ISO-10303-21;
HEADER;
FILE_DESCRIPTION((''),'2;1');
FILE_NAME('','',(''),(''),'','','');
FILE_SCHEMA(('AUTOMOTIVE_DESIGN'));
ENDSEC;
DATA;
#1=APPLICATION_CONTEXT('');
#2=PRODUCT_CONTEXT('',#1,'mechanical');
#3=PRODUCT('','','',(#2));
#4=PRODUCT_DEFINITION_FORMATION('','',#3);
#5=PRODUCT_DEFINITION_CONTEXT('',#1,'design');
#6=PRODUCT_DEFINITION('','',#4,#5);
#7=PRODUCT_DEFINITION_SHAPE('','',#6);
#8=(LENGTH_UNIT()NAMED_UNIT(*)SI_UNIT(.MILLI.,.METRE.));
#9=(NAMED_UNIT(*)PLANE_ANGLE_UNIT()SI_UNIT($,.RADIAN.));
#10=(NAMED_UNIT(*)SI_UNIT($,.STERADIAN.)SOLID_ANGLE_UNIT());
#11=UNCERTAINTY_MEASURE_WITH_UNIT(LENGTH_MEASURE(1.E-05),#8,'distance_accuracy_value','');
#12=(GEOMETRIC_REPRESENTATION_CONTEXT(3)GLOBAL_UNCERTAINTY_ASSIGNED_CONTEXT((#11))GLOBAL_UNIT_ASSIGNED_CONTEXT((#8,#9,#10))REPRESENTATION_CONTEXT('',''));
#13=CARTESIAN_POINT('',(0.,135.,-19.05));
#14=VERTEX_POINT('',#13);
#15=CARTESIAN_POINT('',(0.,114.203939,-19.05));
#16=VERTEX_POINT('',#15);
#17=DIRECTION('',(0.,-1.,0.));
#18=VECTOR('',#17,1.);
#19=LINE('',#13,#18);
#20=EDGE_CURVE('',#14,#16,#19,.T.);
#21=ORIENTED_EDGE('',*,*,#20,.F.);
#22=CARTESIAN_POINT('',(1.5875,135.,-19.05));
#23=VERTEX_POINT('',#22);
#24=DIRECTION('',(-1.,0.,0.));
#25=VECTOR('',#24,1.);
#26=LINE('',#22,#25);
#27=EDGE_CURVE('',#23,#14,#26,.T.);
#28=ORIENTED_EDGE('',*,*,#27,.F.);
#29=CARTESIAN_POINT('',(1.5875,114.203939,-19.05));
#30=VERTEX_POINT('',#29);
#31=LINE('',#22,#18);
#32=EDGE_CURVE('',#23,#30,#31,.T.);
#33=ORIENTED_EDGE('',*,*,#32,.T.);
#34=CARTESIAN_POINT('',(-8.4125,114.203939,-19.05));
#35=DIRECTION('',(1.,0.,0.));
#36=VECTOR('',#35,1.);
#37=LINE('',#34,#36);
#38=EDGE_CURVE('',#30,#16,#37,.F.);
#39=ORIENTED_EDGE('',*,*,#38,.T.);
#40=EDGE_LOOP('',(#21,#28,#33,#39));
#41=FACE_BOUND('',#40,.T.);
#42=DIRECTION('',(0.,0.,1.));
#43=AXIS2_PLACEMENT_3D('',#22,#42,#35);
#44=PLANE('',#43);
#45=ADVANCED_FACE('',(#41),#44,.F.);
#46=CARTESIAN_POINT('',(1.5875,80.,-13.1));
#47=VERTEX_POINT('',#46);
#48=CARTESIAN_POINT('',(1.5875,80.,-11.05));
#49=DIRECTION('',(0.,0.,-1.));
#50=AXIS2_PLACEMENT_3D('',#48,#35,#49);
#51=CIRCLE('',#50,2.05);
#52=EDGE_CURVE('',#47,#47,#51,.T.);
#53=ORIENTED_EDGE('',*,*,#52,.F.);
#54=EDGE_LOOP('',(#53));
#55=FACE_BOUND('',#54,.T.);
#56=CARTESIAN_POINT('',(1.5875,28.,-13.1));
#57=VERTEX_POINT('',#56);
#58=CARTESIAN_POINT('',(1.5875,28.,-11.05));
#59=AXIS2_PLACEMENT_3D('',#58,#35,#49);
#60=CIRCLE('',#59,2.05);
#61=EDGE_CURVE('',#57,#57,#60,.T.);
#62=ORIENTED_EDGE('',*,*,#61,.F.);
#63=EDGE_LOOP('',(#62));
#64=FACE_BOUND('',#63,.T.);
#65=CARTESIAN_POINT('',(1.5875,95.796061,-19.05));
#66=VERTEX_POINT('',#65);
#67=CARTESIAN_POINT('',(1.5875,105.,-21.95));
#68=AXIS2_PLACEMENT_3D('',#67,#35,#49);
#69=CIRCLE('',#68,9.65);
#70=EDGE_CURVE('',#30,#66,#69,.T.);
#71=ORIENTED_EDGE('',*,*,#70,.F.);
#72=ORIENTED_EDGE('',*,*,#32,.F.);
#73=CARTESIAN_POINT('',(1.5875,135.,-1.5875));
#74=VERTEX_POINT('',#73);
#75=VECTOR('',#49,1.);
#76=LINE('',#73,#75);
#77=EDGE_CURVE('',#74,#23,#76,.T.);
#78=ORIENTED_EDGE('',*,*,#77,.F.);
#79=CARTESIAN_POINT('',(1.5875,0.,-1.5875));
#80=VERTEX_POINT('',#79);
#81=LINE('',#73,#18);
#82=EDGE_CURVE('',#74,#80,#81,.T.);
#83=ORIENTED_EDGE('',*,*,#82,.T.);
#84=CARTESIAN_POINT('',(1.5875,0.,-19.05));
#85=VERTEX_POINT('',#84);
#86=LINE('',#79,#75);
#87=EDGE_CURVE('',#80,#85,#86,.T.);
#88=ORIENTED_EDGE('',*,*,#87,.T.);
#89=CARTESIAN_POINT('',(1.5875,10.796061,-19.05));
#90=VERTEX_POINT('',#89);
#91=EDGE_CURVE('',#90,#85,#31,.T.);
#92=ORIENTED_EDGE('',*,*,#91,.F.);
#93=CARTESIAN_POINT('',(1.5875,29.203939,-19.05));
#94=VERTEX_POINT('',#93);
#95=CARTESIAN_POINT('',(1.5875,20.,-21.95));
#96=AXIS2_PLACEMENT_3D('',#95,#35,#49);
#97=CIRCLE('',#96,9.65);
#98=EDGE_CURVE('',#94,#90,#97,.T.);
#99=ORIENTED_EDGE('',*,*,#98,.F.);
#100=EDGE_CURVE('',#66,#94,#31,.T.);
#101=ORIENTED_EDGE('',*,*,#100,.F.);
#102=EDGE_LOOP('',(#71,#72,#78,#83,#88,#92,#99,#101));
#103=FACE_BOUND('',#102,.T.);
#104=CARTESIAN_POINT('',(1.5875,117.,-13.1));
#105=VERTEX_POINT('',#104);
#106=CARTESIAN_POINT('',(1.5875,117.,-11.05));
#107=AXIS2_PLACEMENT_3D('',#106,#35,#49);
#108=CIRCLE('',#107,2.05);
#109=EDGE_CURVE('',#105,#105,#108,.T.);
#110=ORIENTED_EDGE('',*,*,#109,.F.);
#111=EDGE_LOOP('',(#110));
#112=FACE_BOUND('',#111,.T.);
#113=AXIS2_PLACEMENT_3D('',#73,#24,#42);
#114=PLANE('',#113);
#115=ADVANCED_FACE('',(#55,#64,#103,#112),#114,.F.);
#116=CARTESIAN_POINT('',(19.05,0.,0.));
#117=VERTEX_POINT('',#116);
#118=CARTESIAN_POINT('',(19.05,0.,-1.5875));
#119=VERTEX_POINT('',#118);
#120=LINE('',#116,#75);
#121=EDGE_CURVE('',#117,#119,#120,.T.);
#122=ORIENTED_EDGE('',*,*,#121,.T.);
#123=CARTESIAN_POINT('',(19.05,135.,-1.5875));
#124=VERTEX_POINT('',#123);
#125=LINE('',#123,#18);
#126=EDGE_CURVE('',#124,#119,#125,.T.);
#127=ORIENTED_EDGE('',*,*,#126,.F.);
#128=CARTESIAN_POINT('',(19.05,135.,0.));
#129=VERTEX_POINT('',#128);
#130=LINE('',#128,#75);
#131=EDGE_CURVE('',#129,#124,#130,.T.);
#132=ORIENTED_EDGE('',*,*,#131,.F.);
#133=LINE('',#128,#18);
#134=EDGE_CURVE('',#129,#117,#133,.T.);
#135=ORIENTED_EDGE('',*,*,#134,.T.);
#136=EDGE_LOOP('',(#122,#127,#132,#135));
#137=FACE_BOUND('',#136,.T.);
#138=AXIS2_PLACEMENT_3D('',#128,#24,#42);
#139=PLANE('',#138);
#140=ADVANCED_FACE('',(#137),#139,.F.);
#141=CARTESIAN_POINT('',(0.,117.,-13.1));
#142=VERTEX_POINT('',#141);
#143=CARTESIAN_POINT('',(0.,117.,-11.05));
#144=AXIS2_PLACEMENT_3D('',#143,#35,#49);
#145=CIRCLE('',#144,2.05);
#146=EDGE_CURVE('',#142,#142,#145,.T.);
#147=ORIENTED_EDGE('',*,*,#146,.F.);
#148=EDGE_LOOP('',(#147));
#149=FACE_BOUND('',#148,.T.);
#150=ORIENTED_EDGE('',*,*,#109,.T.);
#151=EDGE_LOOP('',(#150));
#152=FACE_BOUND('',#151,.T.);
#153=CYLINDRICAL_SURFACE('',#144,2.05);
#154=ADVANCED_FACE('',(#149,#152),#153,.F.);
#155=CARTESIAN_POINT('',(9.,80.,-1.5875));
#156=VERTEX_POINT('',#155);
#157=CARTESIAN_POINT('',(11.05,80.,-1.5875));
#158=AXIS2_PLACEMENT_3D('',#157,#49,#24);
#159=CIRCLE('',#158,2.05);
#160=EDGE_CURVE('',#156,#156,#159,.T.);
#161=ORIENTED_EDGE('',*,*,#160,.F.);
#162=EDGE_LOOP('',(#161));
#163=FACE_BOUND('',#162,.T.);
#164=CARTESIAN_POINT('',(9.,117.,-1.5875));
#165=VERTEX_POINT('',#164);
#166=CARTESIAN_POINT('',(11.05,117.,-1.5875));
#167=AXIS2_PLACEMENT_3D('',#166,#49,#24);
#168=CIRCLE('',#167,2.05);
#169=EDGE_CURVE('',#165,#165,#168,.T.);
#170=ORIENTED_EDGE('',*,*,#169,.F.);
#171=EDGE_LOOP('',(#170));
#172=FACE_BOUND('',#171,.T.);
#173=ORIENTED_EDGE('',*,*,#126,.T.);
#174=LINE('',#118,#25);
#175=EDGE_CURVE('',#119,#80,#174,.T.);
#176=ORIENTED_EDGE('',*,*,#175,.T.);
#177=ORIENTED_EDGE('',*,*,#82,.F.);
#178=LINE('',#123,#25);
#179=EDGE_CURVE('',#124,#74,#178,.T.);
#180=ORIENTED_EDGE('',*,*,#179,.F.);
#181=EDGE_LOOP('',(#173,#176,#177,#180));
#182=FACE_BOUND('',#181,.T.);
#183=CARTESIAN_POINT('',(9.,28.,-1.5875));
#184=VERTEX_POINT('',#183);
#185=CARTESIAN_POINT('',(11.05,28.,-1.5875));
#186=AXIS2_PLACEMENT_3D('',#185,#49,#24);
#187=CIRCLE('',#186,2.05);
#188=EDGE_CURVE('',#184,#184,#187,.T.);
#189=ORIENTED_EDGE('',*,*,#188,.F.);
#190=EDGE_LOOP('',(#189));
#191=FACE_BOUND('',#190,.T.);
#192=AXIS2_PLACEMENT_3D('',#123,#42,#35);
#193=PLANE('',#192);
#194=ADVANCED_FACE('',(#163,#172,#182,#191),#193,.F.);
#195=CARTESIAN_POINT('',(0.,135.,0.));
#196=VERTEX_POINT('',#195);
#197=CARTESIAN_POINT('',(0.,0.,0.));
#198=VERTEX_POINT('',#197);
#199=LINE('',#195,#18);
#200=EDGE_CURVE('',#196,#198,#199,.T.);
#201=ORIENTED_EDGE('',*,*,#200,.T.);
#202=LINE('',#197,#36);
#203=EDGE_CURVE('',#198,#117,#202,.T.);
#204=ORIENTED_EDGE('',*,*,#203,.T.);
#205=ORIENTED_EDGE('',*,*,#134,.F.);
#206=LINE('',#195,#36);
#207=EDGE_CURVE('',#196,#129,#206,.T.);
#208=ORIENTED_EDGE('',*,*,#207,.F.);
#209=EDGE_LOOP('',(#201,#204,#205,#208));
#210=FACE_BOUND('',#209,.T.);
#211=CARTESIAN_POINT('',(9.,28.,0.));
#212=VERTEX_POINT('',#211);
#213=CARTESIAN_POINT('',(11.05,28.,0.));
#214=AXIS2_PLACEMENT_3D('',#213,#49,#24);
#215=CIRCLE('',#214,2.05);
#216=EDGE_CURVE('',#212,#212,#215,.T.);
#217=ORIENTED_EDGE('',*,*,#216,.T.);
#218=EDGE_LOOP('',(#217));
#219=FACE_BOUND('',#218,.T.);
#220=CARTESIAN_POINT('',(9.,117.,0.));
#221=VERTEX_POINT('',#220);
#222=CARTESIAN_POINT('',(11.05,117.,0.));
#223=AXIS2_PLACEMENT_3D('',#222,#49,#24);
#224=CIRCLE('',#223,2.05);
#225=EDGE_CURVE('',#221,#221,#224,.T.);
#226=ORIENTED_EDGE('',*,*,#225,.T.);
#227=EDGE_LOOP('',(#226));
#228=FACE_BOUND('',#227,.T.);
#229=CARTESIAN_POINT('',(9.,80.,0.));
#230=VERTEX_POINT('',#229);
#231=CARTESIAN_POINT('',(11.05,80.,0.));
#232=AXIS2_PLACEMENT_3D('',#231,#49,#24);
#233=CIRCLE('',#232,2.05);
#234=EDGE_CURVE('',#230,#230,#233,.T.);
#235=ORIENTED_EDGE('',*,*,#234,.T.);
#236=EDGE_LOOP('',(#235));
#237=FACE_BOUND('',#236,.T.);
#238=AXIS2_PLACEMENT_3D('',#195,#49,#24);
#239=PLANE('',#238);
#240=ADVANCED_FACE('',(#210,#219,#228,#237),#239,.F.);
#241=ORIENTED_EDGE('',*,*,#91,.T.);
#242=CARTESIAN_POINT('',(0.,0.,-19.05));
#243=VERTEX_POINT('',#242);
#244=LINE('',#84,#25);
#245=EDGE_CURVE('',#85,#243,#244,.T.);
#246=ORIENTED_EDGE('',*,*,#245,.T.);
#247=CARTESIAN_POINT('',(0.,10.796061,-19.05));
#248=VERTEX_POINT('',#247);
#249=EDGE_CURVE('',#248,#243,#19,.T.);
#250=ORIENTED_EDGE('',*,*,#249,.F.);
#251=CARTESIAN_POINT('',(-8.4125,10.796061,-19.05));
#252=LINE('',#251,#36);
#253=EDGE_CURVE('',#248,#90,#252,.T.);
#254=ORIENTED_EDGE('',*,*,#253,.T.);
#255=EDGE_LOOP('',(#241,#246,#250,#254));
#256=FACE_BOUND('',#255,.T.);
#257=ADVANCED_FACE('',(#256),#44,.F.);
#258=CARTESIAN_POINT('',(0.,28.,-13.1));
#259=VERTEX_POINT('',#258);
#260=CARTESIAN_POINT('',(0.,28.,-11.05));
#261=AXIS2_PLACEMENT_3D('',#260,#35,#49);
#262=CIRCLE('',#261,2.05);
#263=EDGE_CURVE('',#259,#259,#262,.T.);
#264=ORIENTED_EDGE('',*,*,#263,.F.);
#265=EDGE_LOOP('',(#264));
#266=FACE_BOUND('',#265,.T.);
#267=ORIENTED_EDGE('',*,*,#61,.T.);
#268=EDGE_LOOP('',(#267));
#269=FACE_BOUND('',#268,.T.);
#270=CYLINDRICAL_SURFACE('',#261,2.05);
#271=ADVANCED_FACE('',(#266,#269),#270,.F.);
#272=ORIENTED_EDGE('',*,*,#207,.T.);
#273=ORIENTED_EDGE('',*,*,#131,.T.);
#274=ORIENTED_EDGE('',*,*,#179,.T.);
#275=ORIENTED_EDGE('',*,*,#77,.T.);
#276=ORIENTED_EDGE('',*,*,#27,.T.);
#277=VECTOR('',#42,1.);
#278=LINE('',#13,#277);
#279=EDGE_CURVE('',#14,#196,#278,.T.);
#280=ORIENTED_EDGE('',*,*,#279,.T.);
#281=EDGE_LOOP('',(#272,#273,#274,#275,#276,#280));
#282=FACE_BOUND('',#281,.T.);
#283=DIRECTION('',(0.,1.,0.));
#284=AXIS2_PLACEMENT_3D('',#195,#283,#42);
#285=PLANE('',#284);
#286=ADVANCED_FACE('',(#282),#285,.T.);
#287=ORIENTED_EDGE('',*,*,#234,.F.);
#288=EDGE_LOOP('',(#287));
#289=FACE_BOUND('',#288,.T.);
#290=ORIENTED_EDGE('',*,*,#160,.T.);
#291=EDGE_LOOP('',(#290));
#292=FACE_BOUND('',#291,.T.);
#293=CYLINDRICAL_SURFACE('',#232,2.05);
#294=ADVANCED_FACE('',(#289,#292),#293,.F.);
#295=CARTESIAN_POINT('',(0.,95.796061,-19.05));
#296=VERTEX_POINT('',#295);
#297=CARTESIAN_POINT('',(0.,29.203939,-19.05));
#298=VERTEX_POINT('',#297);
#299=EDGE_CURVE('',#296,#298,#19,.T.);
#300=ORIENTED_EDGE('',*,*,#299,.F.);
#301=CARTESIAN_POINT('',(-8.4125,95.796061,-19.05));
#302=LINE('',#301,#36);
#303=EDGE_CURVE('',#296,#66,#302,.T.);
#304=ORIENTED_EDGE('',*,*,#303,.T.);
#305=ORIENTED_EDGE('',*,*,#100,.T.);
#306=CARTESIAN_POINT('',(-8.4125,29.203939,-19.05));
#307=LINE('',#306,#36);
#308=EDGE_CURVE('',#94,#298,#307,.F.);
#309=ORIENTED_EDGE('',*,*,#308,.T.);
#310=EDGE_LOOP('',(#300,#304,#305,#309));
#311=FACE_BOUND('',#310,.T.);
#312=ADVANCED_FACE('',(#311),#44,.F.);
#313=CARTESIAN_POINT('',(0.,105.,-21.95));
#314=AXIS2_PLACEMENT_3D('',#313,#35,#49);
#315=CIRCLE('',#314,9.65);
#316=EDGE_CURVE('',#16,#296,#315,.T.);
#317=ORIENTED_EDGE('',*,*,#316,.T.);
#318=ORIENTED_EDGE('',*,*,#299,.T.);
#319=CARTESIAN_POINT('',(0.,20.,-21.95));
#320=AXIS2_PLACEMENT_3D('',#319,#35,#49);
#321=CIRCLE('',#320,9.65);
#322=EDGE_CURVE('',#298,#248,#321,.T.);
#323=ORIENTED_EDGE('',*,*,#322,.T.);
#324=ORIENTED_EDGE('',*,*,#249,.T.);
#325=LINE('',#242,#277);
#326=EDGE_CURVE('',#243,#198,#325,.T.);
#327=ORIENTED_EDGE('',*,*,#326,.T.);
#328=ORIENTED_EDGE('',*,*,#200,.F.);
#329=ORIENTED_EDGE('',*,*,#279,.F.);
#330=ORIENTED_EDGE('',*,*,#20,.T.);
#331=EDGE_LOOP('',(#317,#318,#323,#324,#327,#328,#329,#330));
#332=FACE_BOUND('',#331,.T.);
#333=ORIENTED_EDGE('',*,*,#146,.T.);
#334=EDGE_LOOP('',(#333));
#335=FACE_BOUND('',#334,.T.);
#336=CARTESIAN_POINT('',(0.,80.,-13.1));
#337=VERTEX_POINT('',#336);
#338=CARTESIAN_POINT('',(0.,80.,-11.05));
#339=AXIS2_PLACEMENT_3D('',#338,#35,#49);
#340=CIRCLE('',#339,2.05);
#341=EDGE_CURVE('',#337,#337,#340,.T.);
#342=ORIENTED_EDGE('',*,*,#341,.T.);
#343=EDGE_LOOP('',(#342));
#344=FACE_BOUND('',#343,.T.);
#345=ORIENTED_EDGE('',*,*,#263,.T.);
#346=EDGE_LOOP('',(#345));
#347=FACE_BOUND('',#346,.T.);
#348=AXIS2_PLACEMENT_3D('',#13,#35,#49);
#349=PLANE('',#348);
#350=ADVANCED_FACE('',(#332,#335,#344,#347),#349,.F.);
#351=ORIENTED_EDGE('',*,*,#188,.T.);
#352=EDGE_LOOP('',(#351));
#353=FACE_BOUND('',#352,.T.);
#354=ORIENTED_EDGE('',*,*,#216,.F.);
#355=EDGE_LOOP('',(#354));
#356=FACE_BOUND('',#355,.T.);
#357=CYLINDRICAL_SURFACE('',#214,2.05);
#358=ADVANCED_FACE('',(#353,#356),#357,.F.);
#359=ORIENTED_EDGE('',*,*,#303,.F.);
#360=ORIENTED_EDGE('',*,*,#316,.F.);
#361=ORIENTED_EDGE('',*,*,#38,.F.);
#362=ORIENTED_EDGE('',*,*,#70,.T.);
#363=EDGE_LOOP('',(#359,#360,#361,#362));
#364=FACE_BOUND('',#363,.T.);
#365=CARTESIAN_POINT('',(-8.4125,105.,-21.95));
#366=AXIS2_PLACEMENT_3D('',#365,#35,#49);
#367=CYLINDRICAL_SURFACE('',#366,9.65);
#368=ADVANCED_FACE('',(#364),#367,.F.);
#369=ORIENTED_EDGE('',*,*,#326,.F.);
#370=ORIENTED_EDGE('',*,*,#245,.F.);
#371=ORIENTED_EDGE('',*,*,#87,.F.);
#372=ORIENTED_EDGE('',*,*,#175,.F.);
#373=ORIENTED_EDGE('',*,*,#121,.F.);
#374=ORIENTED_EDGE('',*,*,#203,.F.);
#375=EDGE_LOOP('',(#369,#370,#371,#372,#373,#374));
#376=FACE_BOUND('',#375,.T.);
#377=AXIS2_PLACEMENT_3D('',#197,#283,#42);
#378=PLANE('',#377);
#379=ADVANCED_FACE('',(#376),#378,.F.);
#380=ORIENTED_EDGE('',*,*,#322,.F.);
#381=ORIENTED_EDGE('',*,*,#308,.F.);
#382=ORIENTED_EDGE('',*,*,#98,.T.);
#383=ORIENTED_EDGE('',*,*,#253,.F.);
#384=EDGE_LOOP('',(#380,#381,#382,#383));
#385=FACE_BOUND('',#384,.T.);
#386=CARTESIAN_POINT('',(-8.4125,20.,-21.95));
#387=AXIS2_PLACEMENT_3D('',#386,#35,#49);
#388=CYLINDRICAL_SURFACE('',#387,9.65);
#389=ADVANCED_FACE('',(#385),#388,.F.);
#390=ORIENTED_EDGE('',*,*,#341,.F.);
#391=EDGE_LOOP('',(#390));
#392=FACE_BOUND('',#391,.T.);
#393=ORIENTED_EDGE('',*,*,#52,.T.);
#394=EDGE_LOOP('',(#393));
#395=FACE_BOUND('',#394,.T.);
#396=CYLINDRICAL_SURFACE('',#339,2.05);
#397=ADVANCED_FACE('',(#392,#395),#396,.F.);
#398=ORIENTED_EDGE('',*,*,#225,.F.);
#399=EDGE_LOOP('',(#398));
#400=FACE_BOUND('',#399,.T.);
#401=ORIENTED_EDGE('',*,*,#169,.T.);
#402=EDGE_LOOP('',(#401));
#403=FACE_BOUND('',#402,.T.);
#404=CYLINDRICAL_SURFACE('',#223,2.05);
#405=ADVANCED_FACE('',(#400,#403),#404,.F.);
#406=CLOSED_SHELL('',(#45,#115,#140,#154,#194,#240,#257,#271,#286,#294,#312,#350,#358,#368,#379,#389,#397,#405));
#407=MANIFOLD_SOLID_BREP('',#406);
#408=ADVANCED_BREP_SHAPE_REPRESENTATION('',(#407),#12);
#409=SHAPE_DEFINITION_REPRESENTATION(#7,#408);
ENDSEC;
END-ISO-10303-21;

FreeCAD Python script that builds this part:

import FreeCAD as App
import Part
import Sketcher

V = App.Vector
Q = App.Units.Quantity


def add_polygon(sketch, points):
    """Adds a closed chain of lines whose ends are joined by coincident constraints."""
    first, n = sketch.GeometryCount, len(points)
    for a, b in zip(points, points[1:] + points[:1]):
        sketch.addGeometry(Part.LineSegment(App.Vector(*a, 0), App.Vector(*b, 0)), False)
    for i in range(n):
        sketch.addConstraint(Sketcher.Constraint("Coincident", first + i, 2, first + (i + 1) % n, 1))

doc = App.newDocument("Part")
body = doc.addObject("PartDesign::Body", "Body")

# Sketch on XZ plane
sketch1 = body.newObject("Sketcher::SketchObject", "Sketch")
sketch1.AttachmentSupport = (doc.getObject("XZ_Plane"), [""])
sketch1.MapMode = "FlatFace"
add_polygon(sketch1, [(0, 0), (19.1, 0), (19.1, -1.6), (1.6, -1.6), (1.6, -19.1), (0, -19.1)])  # lines 0-5
sketch1.addConstraint([
    Sketcher.Constraint("Horizontal", 0),
    Sketcher.Constraint("Vertical", 1),
    Sketcher.Constraint("Horizontal", 2),
    Sketcher.Constraint("Vertical", 3),
    Sketcher.Constraint("Horizontal", 4),
    Sketcher.Constraint("Vertical", 5),
    Sketcher.Constraint("Coincident", 5, 2, -1, 1),
    Sketcher.Constraint("Equal", 4, 1),
    Sketcher.Constraint("Equal", 2, 3),
    Sketcher.Constraint("DistanceX", 0, 1, 0, 2, Q("19.05 mm")),
    Sketcher.Constraint("DistanceX", 2, 2, 2, 1, Q("17.4625 mm")),
])
pad1 = body.newObject("PartDesign::Pad", "Pad")
pad1.Profile = sketch1
pad1.Length = 135
pad1.Reversed = True

# Sketch on YZ plane
sketch2 = body.newObject("Sketcher::SketchObject", "Sketch001")
sketch2.AttachmentSupport = (doc.getObject("YZ_Plane"), [""])
sketch2.MapMode = "FlatFace"
sketch2.AttachmentOffset = App.Placement(V(0, 0, 1.5875), App.Rotation())
sketch2.addGeometry([
    Part.Circle(V(117, -11.1, 0), V(0, 0, 1), 2),
    Part.Circle(V(80, -11.1, 0), V(0, 0, 1), 2),
    Part.Circle(V(28, -11.1, 0), V(0, 0, 1), 2),
], False)
sketch2.addConstraint([
    Sketcher.Constraint("Equal", 0, 1),
    Sketcher.Constraint("Equal", 1, 2),
    Sketcher.Constraint("Horizontal", 0, 3, 1, 3),
    Sketcher.Constraint("Horizontal", 1, 3, 2, 3),
    Sketcher.Constraint("Diameter", 0, Q("4.1 mm")),
    Sketcher.Constraint("DistanceX", -1, 1, 0, 3, Q("117 mm")),
    Sketcher.Constraint("DistanceX", -1, 1, 1, 3, Q("80 mm")),
    Sketcher.Constraint("DistanceX", -1, 1, 2, 3, Q("28 mm")),
    Sketcher.Constraint("DistanceY", 0, 3, -1, 1, Q("11.05 mm")),
])
pocket1 = body.newObject("PartDesign::Pocket", "Pocket")
pocket1.Profile = sketch2
pocket1.Type = "ThroughAll"

# Sketch on XY plane
sketch3 = body.newObject("Sketcher::SketchObject", "Sketch002")
sketch3.AttachmentSupport = (doc.getObject("XY_Plane"), [""])
sketch3.MapMode = "FlatFace"
sketch3.AttachmentOffset = App.Placement(V(0, 0, -1.5875), App.Rotation())
sketch3.addGeometry([
    Part.Circle(V(11.1, 117, 0), V(0, 0, 1), 2),
    Part.Circle(V(11.1, 80, 0), V(0, 0, 1), 2),
    Part.Circle(V(11.1, 28, 0), V(0, 0, 1), 2),
], False)
sketch3.addConstraint([
    Sketcher.Constraint("Equal", 0, 1),
    Sketcher.Constraint("Equal", 1, 2),
    Sketcher.Constraint("Vertical", 0, 3, 1, 3),
    Sketcher.Constraint("Vertical", 1, 3, 2, 3),
    Sketcher.Constraint("Diameter", 0, Q("4.1 mm")),
    Sketcher.Constraint("DistanceY", -1, 1, 0, 3, Q("117 mm")),
    Sketcher.Constraint("DistanceY", -1, 1, 1, 3, Q("80 mm")),
    Sketcher.Constraint("DistanceY", -1, 1, 2, 3, Q("28 mm")),
    Sketcher.Constraint("DistanceX", -1, 1, 0, 3, Q("11.05 mm")),
])
pocket2 = body.newObject("PartDesign::Pocket", "Pocket001")
pocket2.Profile = sketch3
pocket2.Type = "ThroughAll"
pocket2.Reversed = True

# Sketch on YZ plane
sketch4 = body.newObject("Sketcher::SketchObject", "Sketch003")
sketch4.AttachmentSupport = (doc.getObject("YZ_Plane"), [""])
sketch4.MapMode = "FlatFace"
sketch4.AttachmentOffset = App.Placement(V(0, 0, 1.5875), App.Rotation())
sketch4.addGeometry([
    Part.Circle(V(105, -22, 0), V(0, 0, 1), 10),
    Part.Circle(V(20, -22, 0), V(0, 0, 1), 10),
], False)
sketch4.addConstraint([
    Sketcher.Constraint("Equal", 0, 1),
    Sketcher.Constraint("Horizontal", 0, 3, 1, 3),
    Sketcher.Constraint("Diameter", 0, Q("19.3 mm")),
    Sketcher.Constraint("DistanceX", -1, 1, 0, 3, Q("105 mm")),
    Sketcher.Constraint("DistanceX", -1, 1, 1, 3, Q("20 mm")),
    Sketcher.Constraint("DistanceY", 0, 3, -1, 1, Q("21.95 mm")),
])
pocket3 = body.newObject("PartDesign::Pocket", "Pocket002")
pocket3.Profile = sketch4
pocket3.Length = 10

doc.recompute()
